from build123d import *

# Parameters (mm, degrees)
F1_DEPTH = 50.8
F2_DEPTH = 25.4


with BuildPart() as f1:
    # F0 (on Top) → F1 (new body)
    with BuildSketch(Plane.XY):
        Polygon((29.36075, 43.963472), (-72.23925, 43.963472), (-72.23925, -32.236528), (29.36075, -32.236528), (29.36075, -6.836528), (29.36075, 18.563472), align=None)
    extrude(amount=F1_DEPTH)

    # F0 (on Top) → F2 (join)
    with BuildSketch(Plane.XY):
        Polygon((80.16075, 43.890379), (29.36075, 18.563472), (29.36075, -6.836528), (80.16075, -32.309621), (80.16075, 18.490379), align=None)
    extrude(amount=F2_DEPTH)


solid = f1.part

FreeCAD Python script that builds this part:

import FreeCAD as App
import Part
import Sketcher

V = App.Vector
Q = App.Units.Quantity


def add_polygon(sketch, points):
    """Adds a closed chain of lines whose ends are joined by coincident constraints."""
    first, n = sketch.GeometryCount, len(points)
    for a, b in zip(points, points[1:] + points[:1]):
        sketch.addGeometry(Part.LineSegment(App.Vector(*a, 0), App.Vector(*b, 0)), False)
    for i in range(n):
        sketch.addConstraint(Sketcher.Constraint("Coincident", first + i, 2, first + (i + 1) % n, 1))

doc = App.newDocument("Part")
params = doc.addObject("Spreadsheet::Sheet", "Params")
for row, (alias, value) in enumerate([
    ("sketch1_width", "4 in"),
    ("sketch1_height", "3 in"),
    ("pad1_length", "2 in"),
    ("sketch2_height", "1 in"),
    ("sketch2_height2", "3 in"),
    ("pad2_length", "1 in"),
], start=1):
    params.set(f"A{row}", alias)
    params.set(f"B{row}", "=" + value)
    params.setAlias(f"B{row}", alias)

body = doc.addObject("PartDesign::Body", "Body")

# Sketch on XY plane
sketch1 = body.newObject("Sketcher::SketchObject", "Sketch")
sketch1.AttachmentSupport = (doc.getObject("XY_Plane"), [""])
sketch1.MapMode = "FlatFace"
add_polygon(sketch1, [(29, 44), (-72, 44), (-72, -32), (29, -32)])  # lines 0-3
sketch1.addConstraint(Sketcher.Constraint("Horizontal", 0))
sketch1.addConstraint(Sketcher.Constraint("Vertical", 1))
sketch1.addConstraint(Sketcher.Constraint("Horizontal", 2))
sketch1.addConstraint(Sketcher.Constraint("Vertical", 3))
sketch1.addConstraint(Sketcher.Constraint("DistanceX", 0, 2, 0, 1, Q("4 in")))
sketch1.addConstraint(Sketcher.Constraint("DistanceY", 1, 2, 1, 1, Q("3 in")))
sketch1.addConstraint(Sketcher.Constraint("DistanceX", 0, 2, -1, 1, Q("72.23925 mm")))
sketch1.addConstraint(Sketcher.Constraint("DistanceY", -1, 1, 0, 2, Q("43.963472 mm")))
sketch1.setExpression("Constraints[8]", "Params.sketch1_width")
sketch1.setExpression("Constraints[9]", "Params.sketch1_height")
pad1 = body.newObject("PartDesign::Pad", "Pad")
pad1.Profile = sketch1
pad1.setExpression("Length", "Params.pad1_length")

# Sketch on XY plane
sketch2 = body.newObject("Sketcher::SketchObject", "Sketch001")
sketch2.AttachmentSupport = (doc.getObject("XY_Plane"), [""])
sketch2.MapMode = "FlatFace"
add_polygon(sketch2, [(80, 44), (29, 19), (29, -7), (80, -32)])  # lines 0-3
sketch2.addConstraint(Sketcher.Constraint("Vertical", 1))
sketch2.addConstraint(Sketcher.Constraint("Vertical", 3))
sketch2.addConstraint(Sketcher.Constraint("DistanceY", 1, 2, 1, 1, Q("1 in")))
sketch2.addConstraint(Sketcher.Constraint("DistanceY", 3, 1, 3, 2, Q("3 in")))
sketch2.addConstraint(Sketcher.Constraint("DistanceX", 1, 2, 2, 2, Q("2 in")))
sketch2.addConstraint(Sketcher.Constraint("DistanceX", -1, 1, 0, 2, Q("29.36075 mm")))
sketch2.addConstraint(Sketcher.Constraint("DistanceY", 1, 2, -1, 1, Q("6.836528 mm")))
sketch2.addConstraint(Sketcher.Constraint("DistanceY", 2, 2, -1, 1, Q("32.309621 mm")))
sketch2.setExpression("Constraints[6]", "Params.sketch2_height")
sketch2.setExpression("Constraints[7]", "Params.sketch2_height2")
pad2 = body.newObject("PartDesign::Pad", "Pad001")
pad2.Profile = sketch2
pad2.setExpression("Length", "Params.pad2_length")

doc.recompute()
